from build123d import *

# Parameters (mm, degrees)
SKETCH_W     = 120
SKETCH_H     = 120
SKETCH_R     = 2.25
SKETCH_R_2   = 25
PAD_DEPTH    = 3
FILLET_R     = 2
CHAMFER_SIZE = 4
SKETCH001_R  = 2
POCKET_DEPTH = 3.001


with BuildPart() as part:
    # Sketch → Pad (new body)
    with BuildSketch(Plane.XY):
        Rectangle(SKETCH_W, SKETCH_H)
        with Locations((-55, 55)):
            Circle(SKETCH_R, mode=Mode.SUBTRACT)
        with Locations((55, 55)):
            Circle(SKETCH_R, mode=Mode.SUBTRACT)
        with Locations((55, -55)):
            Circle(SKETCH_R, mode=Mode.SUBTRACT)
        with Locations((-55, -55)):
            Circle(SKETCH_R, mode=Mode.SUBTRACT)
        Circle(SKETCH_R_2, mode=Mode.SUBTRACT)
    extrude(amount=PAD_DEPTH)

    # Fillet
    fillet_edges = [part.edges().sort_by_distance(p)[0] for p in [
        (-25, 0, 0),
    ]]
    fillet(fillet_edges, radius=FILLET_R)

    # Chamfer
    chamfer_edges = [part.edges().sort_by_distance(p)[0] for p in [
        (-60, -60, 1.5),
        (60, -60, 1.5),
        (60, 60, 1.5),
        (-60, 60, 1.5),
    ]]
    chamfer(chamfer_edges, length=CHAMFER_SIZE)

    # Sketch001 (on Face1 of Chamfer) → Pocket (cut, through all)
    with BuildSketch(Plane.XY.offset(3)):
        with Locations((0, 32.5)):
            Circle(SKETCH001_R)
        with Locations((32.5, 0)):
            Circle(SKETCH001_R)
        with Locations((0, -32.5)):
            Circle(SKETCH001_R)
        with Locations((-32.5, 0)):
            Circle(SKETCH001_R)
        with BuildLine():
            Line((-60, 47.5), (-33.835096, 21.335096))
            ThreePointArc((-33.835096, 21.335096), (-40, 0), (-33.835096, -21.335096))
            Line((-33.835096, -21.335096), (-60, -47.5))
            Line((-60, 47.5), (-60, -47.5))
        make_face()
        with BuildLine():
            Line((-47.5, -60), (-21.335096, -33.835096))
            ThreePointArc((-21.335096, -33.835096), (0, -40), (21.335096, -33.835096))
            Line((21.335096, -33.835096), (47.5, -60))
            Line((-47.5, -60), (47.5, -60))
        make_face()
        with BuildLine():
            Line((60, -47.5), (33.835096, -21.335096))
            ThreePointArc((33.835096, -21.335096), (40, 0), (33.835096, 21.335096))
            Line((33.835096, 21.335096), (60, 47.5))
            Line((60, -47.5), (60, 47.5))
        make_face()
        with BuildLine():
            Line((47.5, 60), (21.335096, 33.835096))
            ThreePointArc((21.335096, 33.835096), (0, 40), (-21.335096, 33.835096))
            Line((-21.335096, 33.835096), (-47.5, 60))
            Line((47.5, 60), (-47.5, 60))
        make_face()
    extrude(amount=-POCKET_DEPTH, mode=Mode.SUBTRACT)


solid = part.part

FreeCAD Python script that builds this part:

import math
import FreeCAD as App
import Part
import Sketcher
from FreeCAD import Vector


def edges_at(feature, points):
    """Names of the edges that pass closest to the given points."""
    edges = feature.Shape.Edges
    near = lambda p: min(range(len(edges)), key=lambda i: edges[i].distToShape(Part.Vertex(*p))[0])
    return sorted({f"Edge{near(p) + 1}" for p in points})

doc = App.newDocument("Part")
params = doc.addObject("Spreadsheet::Sheet", "Params")
for row, (alias, value) in enumerate([
    ("sketch1_diameter", "50 mm"),
    ("sketch1_diameter2", "4.5 mm"),
    ("sketch1_width", "120 mm"),
    ("pad1_length", "3 mm"),
    ("fillet_radius", "2 mm"),
    ("chamfer_size", "4 mm"),
    ("sketch2_diameter", "4 mm"),
    ("sketch2_width", "95 mm"),
], start=1):
    params.set(f"A{row}", alias)
    params.set(f"B{row}", "=" + value)
    params.setAlias(f"B{row}", alias)

body = doc.addObject("PartDesign::Body", "Body")

# Sketch on XY plane
sketch1 = body.newObject("Sketcher::SketchObject", "Sketch")
sketch1.AttachmentSupport = (doc.getObject("XY_Plane"), [""])
sketch1.MapMode = "FlatFace"
sketch1.addGeometry(Part.LineSegment(Vector(-60, 60, 0), Vector(-60, -60, 0)), False)
sketch1.addGeometry(Part.LineSegment(Vector(-60, -60, 0), Vector(60, -60, 0)), False)
sketch1.addGeometry(Part.LineSegment(Vector(60, -60, 0), Vector(60, 60, 0)), False)
sketch1.addGeometry(Part.LineSegment(Vector(60, 60, 0), Vector(-60, 60, 0)), False)
sketch1.addGeometry(Part.Circle(Vector(-55, -55, 0), Vector(0, 0, 1), 2.25), False)
sketch1.addGeometry(Part.Circle(Vector(55, -55, 0), Vector(0, 0, 1), 2.25), False)
sketch1.addGeometry(Part.Circle(Vector(-55, 55, 0), Vector(0, 0, 1), 2.25), False)
sketch1.addGeometry(Part.Circle(Vector(0, 0, 0), Vector(0, 0, 1), 25), False)
sketch1.addGeometry(Part.Circle(Vector(55, 55, 0), Vector(0, 0, 1), 2.25), False)
sketch1.addConstraint(Sketcher.Constraint("Coincident", 0, 2, 1, 1))
sketch1.addConstraint(Sketcher.Constraint("Coincident", 1, 2, 2, 1))
sketch1.addConstraint(Sketcher.Constraint("Coincident", 2, 2, 3, 1))
sketch1.addConstraint(Sketcher.Constraint("Coincident", 3, 2, 0, 1))
sketch1.addConstraint(Sketcher.Constraint("Vertical", 0))
sketch1.addConstraint(Sketcher.Constraint("Horizontal", 1))
sketch1.addConstraint(Sketcher.Constraint("Vertical", 2))
sketch1.addConstraint(Sketcher.Constraint("Horizontal", 3))
sketch1.addConstraint(Sketcher.Constraint("Coincident", 7, 3, -1, 1))
sketch1.addConstraint(Sketcher.Constraint("Equal", 4, 5))
sketch1.addConstraint(Sketcher.Constraint("Equal", 5, 6))
sketch1.addConstraint(Sketcher.Constraint("Equal", 6, 8))
sketch1.addConstraint(Sketcher.Constraint("Symmetric", 5, 3, 6, 3, -1, 1))
sketch1.addConstraint(Sketcher.Constraint("Symmetric", 4, 3, 8, 3, -1, 1))
sketch1.addConstraint(Sketcher.Constraint("Symmetric", 0, 2, 2, 2, -1, 1))
sketch1.addConstraint(Sketcher.Constraint("Symmetric", 4, 3, 5, 3, -2))
sketch1.addConstraint(Sketcher.Constraint("Equal", 3, 0))
sketch1.addConstraint(Sketcher.Constraint("Diameter", 7, 50.0))
sketch1.addConstraint(Sketcher.Constraint("Diameter", 4, 4.5))
sketch1.addConstraint(Sketcher.Constraint("DistanceX", 1, 1, 1, 2, 120.0))
sketch1.addConstraint(Sketcher.Constraint("DistanceX", 4, 3, -1, 1, 55.0))
sketch1.addConstraint(Sketcher.Constraint("DistanceY", 4, 3, -1, 1, 55.0))
sketch1.setExpression("Constraints[17]", "Params.sketch1_diameter")
sketch1.setExpression("Constraints[18]", "Params.sketch1_diameter2")
sketch1.setExpression("Constraints[19]", "Params.sketch1_width")
pad1 = body.newObject("PartDesign::Pad", "Pad")
pad1.Profile = sketch1
pad1.setExpression("Length", "Params.pad1_length")
doc.recompute()

fillet = body.newObject("PartDesign::Fillet", "Fillet")
fillet.Base = (pad1, edges_at(pad1, [(-25, 0, 0)]))
fillet.setExpression("Radius", "Params.fillet_radius")
doc.recompute()

chamfer = body.newObject("PartDesign::Chamfer", "Chamfer")
chamfer.Base = (fillet, edges_at(fillet, [
    (-60, -60, 1.5),
    (60, -60, 1.5),
    (60, 60, 1.5),
    (-60, 60, 1.5),
]))
chamfer.setExpression("Size", "Params.chamfer_size")

# Sketch on XY plane
sketch2 = body.newObject("Sketcher::SketchObject", "Sketch001")
sketch2.AttachmentSupport = (doc.getObject("XY_Plane"), [""])
sketch2.MapMode = "FlatFace"
sketch2.AttachmentOffset = App.Placement(Vector(0, 0, 3), App.Rotation())
sketch2.addGeometry(Part.Circle(Vector(0, 32.5, 0), Vector(0, 0, 1), 2), False)
sketch2.addGeometry(Part.Circle(Vector(32.5, 0, 0), Vector(0, 0, 1), 2), False)
sketch2.addGeometry(Part.Circle(Vector(0, -32.5, 0), Vector(0, 0, 1), 2), False)
sketch2.addGeometry(Part.Circle(Vector(-32.5, 0, 0), Vector(0, 0, 1), 2), False)
sketch2.addGeometry(Part.LineSegment(Vector(-33.835096, 21.335096, 0), Vector(-60, 47.5, 0)), False)
sketch2.addGeometry(Part.LineSegment(Vector(-60, 47.5, 0), Vector(-60, -47.5, 0)), False)
sketch2.addGeometry(Part.LineSegment(Vector(-60, -47.5, 0), Vector(-33.835096, -21.335096, 0)), False)
sketch2.addGeometry(Part.ArcOfCircle(Part.Circle(Vector(0.000003, 0, 0), Vector(0, 0, 1), 40.000003), math.radians(147.766066), math.radians(212.233934)), False)
sketch2.addGeometry(Part.LineSegment(Vector(-21.335096, -33.835096, 0), Vector(-47.5, -60, 0)), False)
sketch2.addGeometry(Part.LineSegment(Vector(-47.5, -60, 0), Vector(47.5, -60, 0)), False)
sketch2.addGeometry(Part.LineSegment(Vector(47.5, -60, 0), Vector(21.335096, -33.835096, 0)), False)
sketch2.addGeometry(Part.ArcOfCircle(Part.Circle(Vector(0, 0.000003, 0), Vector(0, 0, 1), 40.000003), math.radians(-122.233934), math.radians(-57.766066)), False)
sketch2.addGeometry(Part.LineSegment(Vector(33.835096, -21.335096, 0), Vector(60, -47.5, 0)), False)
sketch2.addGeometry(Part.LineSegment(Vector(60, -47.5, 0), Vector(60, 47.5, 0)), False)
sketch2.addGeometry(Part.LineSegment(Vector(60, 47.5, 0), Vector(33.835096, 21.335096, 0)), False)
sketch2.addGeometry(Part.ArcOfCircle(Part.Circle(Vector(-0.000003, 0, 0), Vector(0, 0, 1), 40.000003), math.radians(-32.233934), math.radians(32.233934)), False)
sketch2.addGeometry(Part.LineSegment(Vector(21.335096, 33.835096, 0), Vector(47.5, 60, 0)), False)
sketch2.addGeometry(Part.LineSegment(Vector(47.5, 60, 0), Vector(-47.5, 60, 0)), False)
sketch2.addGeometry(Part.LineSegment(Vector(-47.5, 60, 0), Vector(-21.335096, 33.835096, 0)), False)
sketch2.addGeometry(Part.ArcOfCircle(Part.Circle(Vector(0, -0.000003, 0), Vector(0, 0, 1), 40.000003), math.radians(57.766066), math.radians(122.233934)), False)
sketch2.addConstraint(Sketcher.Constraint("Coincident", 4, 2, 5, 1))
sketch2.addConstraint(Sketcher.Constraint("Coincident", 5, 2, 6, 1))
sketch2.addConstraint(Sketcher.Constraint("Coincident", 6, 2, 7, 2))
sketch2.addConstraint(Sketcher.Constraint("Coincident", 7, 1, 4, 1))
sketch2.addConstraint(Sketcher.Constraint("Coincident", 8, 2, 9, 1))
sketch2.addConstraint(Sketcher.Constraint("Coincident", 9, 2, 10, 1))
sketch2.addConstraint(Sketcher.Constraint("Coincident", 10, 2, 11, 2))
sketch2.addConstraint(Sketcher.Constraint("Coincident", 11, 1, 8, 1))
sketch2.addConstraint(Sketcher.Constraint("Coincident", 12, 2, 13, 1))
sketch2.addConstraint(Sketcher.Constraint("Coincident", 13, 2, 14, 1))
sketch2.addConstraint(Sketcher.Constraint("Coincident", 14, 2, 15, 2))
sketch2.addConstraint(Sketcher.Constraint("Coincident", 15, 1, 12, 1))
sketch2.addConstraint(Sketcher.Constraint("Coincident", 16, 2, 17, 1))
sketch2.addConstraint(Sketcher.Constraint("Coincident", 17, 2, 18, 1))
sketch2.addConstraint(Sketcher.Constraint("Coincident", 18, 2, 19, 2))
sketch2.addConstraint(Sketcher.Constraint("Coincident", 19, 1, 16, 1))
sketch2.addConstraint(Sketcher.Constraint("Vertical", 5))
sketch2.addConstraint(Sketcher.Constraint("Horizontal", 9))
sketch2.addConstraint(Sketcher.Constraint("Vertical", 13))
sketch2.addConstraint(Sketcher.Constraint("Horizontal", 17))
sketch2.addConstraint(Sketcher.Constraint("Coincident", 7, 3, -1, 1))
sketch2.addConstraint(Sketcher.Constraint("Coincident", 11, 3, -1, 1))
sketch2.addConstraint(Sketcher.Constraint("Coincident", 15, 3, -1, 1))
sketch2.addConstraint(Sketcher.Constraint("Coincident", 19, 3, -1, 1))
sketch2.addConstraint(Sketcher.Constraint("Equal", 0, 1))
sketch2.addConstraint(Sketcher.Constraint("Equal", 1, 2))
sketch2.addConstraint(Sketcher.Constraint("Equal", 2, 3))
sketch2.addConstraint(Sketcher.Constraint("Equal", 7, 11))
sketch2.addConstraint(Sketcher.Constraint("Equal", 11, 15))
sketch2.addConstraint(Sketcher.Constraint("Equal", 15, 19))
sketch2.addConstraint(Sketcher.Constraint("Symmetric", 0, 3, 2, 3, -1, 1))
sketch2.addConstraint(Sketcher.Constraint("Symmetric", 1, 3, 3, 3, -1, 1))
sketch2.addConstraint(Sketcher.Constraint("Symmetric", 4, 2, 12, 2, -1, 1))
sketch2.addConstraint(Sketcher.Constraint("Symmetric", 8, 2, 16, 2, -1, 1))
sketch2.addConstraint(Sketcher.Constraint("PointOnObject", 0, 3, -2))
sketch2.addConstraint(Sketcher.Constraint("PointOnObject", 1, 3, -1))
sketch2.addConstraint(Sketcher.Constraint("Perpendicular", 4, 6))
sketch2.addConstraint(Sketcher.Constraint("Parallel", 6, 8))
sketch2.addConstraint(Sketcher.Constraint("Perpendicular", 8, 10))
sketch2.addConstraint(Sketcher.Constraint("Parallel", 10, 12))
sketch2.addConstraint(Sketcher.Constraint("Perpendicular", 12, 14))
sketch2.addConstraint(Sketcher.Constraint("Parallel", 14, 16))
sketch2.addConstraint(Sketcher.Constraint("Perpendicular", 16, 18))
sketch2.addConstraint(Sketcher.Constraint("Horizontal", 10, 2, 11, 1))
sketch2.addConstraint(Sketcher.Constraint("Horizontal", 5, 2, 12, 2))
sketch2.addConstraint(Sketcher.Constraint("Horizontal", 4, 2, 13, 2))
sketch2.addConstraint(Sketcher.Constraint("Horizontal", 7, 1, 14, 2))
sketch2.addConstraint(Sketcher.Constraint("Horizontal", 18, 2, 19, 1))
sketch2.addConstraint(Sketcher.Constraint("Equal", 17, 5))
sketch2.addConstraint(Sketcher.Constraint("Equal", 6, 8))
sketch2.addConstraint(Sketcher.Constraint("Diameter", 0, 4.0))
sketch2.addConstraint(Sketcher.Constraint("DistanceX", 9, 1, 9, 2, 95.0))
sketch2.addConstraint(Sketcher.Constraint("DistanceX", 4, 2, -1, 1, 60.0))
sketch2.addConstraint(Sketcher.Constraint("DistanceY", 2, 3, 0, 3, 65.0))
sketch2.addConstraint(Sketcher.Constraint("DistanceX", 3, 3, 1, 3, 65.0))
sketch2.addConstraint(Sketcher.Constraint("Radius", 7, 40.000003))
sketch2.setExpression("Constraints[50]", "Params.sketch2_diameter")
sketch2.setExpression("Constraints[51]", "Params.sketch2_width")
pocket1 = body.newObject("PartDesign::Pocket", "Pocket")
pocket1.Profile = sketch2
pocket1.Type = "ThroughAll"

doc.recompute()
